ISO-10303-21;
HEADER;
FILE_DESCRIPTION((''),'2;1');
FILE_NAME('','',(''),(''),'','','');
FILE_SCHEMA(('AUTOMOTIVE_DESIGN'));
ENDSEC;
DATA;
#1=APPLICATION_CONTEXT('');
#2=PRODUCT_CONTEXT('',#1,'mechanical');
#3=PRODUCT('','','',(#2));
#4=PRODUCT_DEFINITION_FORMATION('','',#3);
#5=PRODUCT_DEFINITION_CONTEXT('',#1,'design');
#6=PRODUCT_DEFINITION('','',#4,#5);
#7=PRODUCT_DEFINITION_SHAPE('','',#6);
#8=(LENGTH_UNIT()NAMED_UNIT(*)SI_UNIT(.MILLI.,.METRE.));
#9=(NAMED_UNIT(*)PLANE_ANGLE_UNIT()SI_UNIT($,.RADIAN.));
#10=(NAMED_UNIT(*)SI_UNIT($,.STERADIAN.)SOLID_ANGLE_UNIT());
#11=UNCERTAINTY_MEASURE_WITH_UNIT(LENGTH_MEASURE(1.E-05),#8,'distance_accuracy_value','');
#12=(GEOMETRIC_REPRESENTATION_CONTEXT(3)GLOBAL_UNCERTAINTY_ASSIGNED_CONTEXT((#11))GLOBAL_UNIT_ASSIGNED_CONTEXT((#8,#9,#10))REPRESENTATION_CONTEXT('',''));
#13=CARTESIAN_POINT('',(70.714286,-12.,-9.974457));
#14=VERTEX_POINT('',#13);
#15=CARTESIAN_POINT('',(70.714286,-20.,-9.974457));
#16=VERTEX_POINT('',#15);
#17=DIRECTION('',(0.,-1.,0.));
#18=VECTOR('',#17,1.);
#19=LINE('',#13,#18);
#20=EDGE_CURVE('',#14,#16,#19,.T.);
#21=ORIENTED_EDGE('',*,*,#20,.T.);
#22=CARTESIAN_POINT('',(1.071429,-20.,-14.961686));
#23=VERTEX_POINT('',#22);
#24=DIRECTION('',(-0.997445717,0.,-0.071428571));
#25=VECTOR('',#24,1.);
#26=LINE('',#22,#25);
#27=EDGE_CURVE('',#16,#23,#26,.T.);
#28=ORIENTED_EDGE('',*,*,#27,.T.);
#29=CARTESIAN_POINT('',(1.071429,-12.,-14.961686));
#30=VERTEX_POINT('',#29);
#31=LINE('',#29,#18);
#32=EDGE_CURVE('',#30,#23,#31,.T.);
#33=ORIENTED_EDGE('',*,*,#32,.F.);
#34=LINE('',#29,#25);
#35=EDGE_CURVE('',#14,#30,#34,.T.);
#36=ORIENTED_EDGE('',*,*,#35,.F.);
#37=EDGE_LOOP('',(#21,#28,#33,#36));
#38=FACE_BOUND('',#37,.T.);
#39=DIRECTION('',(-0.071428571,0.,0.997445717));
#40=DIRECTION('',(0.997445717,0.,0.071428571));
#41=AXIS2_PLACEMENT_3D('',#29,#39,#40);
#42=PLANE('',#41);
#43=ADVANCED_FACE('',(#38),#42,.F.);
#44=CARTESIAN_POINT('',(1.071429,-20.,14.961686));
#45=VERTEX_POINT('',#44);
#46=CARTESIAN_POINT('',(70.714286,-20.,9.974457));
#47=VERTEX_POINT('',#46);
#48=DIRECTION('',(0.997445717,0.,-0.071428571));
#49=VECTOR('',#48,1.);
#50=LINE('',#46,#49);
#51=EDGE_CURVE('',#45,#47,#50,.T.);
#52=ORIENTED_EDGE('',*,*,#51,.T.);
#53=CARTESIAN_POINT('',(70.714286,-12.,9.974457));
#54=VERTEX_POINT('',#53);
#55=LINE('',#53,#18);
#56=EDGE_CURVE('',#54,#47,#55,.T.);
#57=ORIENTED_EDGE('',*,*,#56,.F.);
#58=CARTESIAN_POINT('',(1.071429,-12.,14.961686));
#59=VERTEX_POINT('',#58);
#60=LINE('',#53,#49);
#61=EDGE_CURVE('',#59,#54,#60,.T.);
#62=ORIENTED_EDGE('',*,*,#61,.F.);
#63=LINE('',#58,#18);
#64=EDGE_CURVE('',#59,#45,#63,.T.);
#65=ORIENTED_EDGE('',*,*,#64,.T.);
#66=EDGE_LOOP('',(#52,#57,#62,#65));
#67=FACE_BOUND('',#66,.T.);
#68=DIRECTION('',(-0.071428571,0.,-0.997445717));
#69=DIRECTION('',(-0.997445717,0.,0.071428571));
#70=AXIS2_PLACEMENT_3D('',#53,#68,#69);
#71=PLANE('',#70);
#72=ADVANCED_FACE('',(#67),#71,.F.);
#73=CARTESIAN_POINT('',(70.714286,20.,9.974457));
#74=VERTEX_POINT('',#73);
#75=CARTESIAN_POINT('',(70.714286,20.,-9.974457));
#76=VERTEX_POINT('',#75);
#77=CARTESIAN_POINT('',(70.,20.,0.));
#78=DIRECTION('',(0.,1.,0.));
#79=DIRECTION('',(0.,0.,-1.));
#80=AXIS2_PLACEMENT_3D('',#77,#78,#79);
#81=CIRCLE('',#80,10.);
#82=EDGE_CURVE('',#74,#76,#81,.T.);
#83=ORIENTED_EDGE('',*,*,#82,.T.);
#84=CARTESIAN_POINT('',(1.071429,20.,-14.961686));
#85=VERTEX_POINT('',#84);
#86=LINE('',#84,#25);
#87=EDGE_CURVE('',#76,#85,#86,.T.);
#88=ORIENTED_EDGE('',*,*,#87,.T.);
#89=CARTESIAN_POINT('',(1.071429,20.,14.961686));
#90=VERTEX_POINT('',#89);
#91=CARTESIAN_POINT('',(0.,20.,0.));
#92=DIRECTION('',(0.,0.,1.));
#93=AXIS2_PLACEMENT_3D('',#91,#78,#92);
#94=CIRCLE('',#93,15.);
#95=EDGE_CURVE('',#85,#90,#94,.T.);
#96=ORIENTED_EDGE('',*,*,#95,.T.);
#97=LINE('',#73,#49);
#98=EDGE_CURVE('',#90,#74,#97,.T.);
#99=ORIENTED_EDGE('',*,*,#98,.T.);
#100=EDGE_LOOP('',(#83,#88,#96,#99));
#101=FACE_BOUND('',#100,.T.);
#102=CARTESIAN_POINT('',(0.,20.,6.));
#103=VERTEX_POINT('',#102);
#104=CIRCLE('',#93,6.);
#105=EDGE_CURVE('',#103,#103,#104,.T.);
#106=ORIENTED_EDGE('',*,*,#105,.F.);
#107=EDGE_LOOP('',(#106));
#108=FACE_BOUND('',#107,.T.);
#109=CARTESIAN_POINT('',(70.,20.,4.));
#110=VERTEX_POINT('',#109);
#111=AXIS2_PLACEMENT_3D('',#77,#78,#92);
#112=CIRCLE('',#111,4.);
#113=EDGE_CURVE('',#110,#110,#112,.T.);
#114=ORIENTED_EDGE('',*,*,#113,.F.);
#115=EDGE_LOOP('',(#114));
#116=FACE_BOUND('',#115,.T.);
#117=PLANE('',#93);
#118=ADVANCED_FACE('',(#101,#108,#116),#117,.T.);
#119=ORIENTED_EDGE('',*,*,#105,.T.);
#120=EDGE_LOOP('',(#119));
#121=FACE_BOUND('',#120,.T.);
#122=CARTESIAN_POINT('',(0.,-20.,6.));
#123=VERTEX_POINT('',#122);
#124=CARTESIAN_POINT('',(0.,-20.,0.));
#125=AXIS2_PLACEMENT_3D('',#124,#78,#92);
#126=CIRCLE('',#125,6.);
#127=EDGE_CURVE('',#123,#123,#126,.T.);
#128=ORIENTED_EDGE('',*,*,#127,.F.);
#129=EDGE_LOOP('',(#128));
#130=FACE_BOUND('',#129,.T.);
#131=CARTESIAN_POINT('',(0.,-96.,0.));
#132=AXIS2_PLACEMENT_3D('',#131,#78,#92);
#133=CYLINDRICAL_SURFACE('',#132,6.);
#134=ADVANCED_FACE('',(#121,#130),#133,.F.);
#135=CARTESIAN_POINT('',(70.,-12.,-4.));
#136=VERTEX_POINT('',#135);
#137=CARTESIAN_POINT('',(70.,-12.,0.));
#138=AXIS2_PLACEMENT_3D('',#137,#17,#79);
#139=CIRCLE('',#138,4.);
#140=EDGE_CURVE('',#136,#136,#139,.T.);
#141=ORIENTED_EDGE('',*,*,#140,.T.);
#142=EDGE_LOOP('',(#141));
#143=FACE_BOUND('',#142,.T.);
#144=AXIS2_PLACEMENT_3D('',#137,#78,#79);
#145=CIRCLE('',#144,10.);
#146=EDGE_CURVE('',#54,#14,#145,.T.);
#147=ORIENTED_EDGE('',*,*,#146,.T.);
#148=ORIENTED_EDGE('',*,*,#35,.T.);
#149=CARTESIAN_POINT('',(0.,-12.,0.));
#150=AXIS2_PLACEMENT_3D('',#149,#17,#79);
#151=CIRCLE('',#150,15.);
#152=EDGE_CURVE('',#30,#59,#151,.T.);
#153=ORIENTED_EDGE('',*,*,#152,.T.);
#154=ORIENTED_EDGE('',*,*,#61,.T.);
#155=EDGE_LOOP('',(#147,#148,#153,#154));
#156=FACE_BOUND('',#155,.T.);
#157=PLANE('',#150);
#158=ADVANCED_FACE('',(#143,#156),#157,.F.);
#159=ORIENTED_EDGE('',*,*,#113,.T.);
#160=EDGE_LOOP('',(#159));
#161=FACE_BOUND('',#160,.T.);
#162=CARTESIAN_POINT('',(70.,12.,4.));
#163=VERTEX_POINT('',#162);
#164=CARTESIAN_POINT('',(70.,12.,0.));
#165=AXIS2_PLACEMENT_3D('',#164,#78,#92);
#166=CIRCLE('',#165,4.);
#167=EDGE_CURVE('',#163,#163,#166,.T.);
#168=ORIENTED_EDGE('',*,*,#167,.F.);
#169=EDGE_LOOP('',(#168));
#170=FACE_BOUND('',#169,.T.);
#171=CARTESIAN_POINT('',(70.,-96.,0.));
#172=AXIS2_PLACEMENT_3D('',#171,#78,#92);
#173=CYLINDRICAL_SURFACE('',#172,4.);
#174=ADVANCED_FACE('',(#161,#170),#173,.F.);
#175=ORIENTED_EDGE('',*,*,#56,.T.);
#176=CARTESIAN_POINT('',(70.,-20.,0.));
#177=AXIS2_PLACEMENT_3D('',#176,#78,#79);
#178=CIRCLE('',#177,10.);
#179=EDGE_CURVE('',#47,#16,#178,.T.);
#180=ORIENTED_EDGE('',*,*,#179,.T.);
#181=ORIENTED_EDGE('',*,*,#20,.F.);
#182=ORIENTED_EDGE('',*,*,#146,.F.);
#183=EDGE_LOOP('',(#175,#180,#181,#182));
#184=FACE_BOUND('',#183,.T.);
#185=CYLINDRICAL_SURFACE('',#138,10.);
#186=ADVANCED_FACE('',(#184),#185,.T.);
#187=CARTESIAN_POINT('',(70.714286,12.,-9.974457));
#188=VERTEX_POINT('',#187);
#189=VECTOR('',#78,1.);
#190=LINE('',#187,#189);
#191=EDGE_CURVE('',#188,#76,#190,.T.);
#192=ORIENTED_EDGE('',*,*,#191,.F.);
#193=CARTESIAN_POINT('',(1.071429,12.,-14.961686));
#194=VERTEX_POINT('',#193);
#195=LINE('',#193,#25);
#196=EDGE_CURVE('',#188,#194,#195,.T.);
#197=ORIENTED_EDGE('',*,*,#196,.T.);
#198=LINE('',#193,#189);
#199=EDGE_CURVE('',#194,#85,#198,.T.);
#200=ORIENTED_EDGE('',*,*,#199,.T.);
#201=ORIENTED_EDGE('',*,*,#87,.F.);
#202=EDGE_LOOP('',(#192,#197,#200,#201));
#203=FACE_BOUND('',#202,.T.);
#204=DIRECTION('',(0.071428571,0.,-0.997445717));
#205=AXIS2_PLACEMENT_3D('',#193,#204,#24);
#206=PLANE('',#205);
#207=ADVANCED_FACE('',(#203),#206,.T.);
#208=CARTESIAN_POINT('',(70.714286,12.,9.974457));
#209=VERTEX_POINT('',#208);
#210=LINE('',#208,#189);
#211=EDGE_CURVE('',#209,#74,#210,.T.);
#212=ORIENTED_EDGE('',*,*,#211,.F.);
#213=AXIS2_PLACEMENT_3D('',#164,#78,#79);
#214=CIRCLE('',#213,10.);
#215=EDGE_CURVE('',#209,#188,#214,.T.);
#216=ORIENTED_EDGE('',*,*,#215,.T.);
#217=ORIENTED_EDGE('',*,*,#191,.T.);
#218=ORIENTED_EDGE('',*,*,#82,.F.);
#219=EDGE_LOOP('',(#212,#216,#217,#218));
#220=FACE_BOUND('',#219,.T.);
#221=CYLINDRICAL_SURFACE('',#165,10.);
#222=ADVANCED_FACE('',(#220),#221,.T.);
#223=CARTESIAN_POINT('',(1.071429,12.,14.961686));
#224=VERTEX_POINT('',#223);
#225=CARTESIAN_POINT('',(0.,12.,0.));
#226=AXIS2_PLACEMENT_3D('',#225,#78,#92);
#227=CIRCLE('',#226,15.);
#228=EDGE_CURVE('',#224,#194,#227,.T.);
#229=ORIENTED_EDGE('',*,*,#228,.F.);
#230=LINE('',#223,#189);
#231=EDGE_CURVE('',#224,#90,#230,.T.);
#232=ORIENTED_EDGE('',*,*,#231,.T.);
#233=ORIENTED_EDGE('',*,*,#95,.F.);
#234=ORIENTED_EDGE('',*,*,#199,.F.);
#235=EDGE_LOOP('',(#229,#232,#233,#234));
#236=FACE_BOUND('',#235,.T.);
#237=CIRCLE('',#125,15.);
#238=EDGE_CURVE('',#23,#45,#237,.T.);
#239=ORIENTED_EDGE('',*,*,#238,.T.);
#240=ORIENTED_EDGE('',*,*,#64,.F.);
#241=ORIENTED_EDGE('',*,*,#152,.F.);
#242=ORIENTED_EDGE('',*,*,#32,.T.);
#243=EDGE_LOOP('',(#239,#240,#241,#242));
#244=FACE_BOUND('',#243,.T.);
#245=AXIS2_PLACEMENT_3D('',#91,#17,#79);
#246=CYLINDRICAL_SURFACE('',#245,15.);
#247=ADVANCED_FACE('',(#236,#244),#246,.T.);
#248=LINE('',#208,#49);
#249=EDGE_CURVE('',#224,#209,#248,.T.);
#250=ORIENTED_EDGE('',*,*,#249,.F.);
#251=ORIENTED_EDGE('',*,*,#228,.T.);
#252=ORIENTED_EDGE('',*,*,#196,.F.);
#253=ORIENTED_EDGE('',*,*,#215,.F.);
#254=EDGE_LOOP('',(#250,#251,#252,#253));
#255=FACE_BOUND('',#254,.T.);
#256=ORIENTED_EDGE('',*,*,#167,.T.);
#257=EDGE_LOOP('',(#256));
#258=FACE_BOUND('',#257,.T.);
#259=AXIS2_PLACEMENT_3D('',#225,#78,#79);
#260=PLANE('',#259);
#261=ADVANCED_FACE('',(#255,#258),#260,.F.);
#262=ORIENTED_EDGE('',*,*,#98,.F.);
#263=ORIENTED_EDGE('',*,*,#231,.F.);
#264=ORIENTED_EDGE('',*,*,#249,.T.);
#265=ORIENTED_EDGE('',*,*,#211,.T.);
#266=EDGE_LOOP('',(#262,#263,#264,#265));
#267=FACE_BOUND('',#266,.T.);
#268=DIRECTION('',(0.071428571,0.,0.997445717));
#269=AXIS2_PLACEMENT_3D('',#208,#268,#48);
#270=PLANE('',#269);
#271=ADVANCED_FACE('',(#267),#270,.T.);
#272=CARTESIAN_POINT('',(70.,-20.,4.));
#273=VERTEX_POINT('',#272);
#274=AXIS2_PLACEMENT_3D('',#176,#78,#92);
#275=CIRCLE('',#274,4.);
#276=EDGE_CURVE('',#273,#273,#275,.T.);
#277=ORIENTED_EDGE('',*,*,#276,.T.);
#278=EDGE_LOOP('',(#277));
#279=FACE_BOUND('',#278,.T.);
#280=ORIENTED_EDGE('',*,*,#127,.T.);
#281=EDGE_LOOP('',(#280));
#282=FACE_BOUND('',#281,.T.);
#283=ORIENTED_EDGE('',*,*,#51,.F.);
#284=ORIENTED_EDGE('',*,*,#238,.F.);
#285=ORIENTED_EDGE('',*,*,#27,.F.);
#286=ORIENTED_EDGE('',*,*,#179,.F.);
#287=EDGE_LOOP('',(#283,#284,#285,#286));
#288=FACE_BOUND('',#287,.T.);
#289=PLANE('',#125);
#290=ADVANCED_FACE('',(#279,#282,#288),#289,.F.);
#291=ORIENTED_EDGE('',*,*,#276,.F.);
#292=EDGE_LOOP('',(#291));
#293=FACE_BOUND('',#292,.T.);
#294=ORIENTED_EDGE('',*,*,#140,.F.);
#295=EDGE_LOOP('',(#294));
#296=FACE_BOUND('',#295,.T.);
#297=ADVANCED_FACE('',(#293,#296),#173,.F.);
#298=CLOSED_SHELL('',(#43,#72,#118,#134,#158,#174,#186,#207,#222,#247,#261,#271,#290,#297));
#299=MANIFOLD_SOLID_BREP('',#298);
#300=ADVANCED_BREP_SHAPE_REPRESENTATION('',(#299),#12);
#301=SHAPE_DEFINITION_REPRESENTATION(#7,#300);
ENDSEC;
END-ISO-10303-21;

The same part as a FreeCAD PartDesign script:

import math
import FreeCAD as App
import Part
import Sketcher
from FreeCAD import Vector
Q = App.Units.Quantity

doc = App.newDocument("Part")
body = doc.addObject("PartDesign::Body", "Body")

sketch1 = body.newObject("Sketcher::SketchObject", "Sketch")
sketch1.AttachmentSupport = (doc.getObject("XZ_Plane"), [""])
sketch1.MapMode = "FlatFace"
sketch1.AttachmentOffset = App.Placement(Vector(0, 0, 20), App.Rotation())
sketch1.addGeometry(Part.Circle(Vector(0, 0, 0), Vector(0, 0, 1), 15), False)
sketch1.addConstraint(Sketcher.Constraint("Coincident", 0, 3, -1, 1))
sketch1.addConstraint(Sketcher.Constraint("Diameter", 0, Q("30 mm")))
pad1 = body.newObject("PartDesign::Pad", "Pad")
pad1.Profile = sketch1
pad1.Length = 40
pad1.Reversed = True

sketch2 = body.newObject("Sketcher::SketchObject", "Sketch001")
sketch2.AttachmentSupport = (doc.getObject("XZ_Plane"), [""])
sketch2.MapMode = "FlatFace"
sketch2.AttachmentOffset = App.Placement(Vector(0, 0, 20), App.Rotation())
sketch2.addGeometry(Part.LineSegment(Vector(70.714286, -9.974457, 0), Vector(1.071429, -14.961686, 0)), False)
sketch2.addGeometry(Part.ArcOfCircle(Part.Circle(Vector(0, 0, 0), Vector(0, 0, 1), 15), math.radians(85.903956), math.radians(274.096044)), False)
sketch2.addGeometry(Part.LineSegment(Vector(1.071429, 14.961686, 0), Vector(70.714286, 9.974457, 0)), False)
sketch2.addGeometry(Part.ArcOfCircle(Part.Circle(Vector(70, 0, 0), Vector(0, 0, 1), 10), math.radians(-85.903956), math.radians(85.903956)), False)
sketch2.addConstraint(Sketcher.Constraint("Tangent", 0, 2, 1, 2))
sketch2.addConstraint(Sketcher.Constraint("Tangent", 1, 1, 2, 1))
sketch2.addConstraint(Sketcher.Constraint("Tangent", 2, 2, 3, 2))
sketch2.addConstraint(Sketcher.Constraint("Tangent", 3, 1, 0, 1))
sketch2.addConstraint(Sketcher.Constraint("Coincident", 1, 3, -1, 1))
sketch2.addConstraint(Sketcher.Constraint("PointOnObject", 3, 3, -1))
sketch2.addConstraint(Sketcher.Constraint("Radius", 1, Q("15 mm")))
sketch2.addConstraint(Sketcher.Constraint("Radius", 3, Q("10 mm")))
sketch2.addConstraint(Sketcher.Constraint("DistanceX", -1, 1, 3, 3, Q("70 mm")))
pad2 = body.newObject("PartDesign::Pad", "Pad001")
pad2.Profile = sketch2
pad2.Length = 8
pad2.Reversed = True
doc.recompute()

mirrored = body.newObject("PartDesign::Mirrored", "Mirrored")
mirrored.Originals = [pad2]
mirrored.MirrorPlane = (doc.getObject("XZ_Plane"), [""])
body.Tip = mirrored

sketch3 = body.newObject("Sketcher::SketchObject", "Sketch002")
sketch3.AttachmentSupport = (doc.getObject("XZ_Plane"), [""])
sketch3.MapMode = "FlatFace"
sketch3.addGeometry(Part.Circle(Vector(0, 0, 0), Vector(0, 0, 1), 6), False)
sketch3.addConstraint(Sketcher.Constraint("Coincident", 0, 3, -1, 1))
sketch3.addConstraint(Sketcher.Constraint("Diameter", 0, Q("12 mm")))
pocket1 = body.newObject("PartDesign::Pocket", "Pocket")
pocket1.Profile = sketch3
pocket1.Length = 192
pocket1.Midplane = True

sketch4 = body.newObject("Sketcher::SketchObject", "Sketch003")
sketch4.AttachmentSupport = (doc.getObject("XZ_Plane"), [""])
sketch4.MapMode = "FlatFace"
sketch4.addGeometry(Part.Circle(Vector(70, 0, 0), Vector(0, 0, 1), 4), False)
sketch4.addConstraint(Sketcher.Constraint("PointOnObject", 0, 3, -1))
sketch4.addConstraint(Sketcher.Constraint("Diameter", 0, Q("8 mm")))
sketch4.addConstraint(Sketcher.Constraint("DistanceX", -1, 1, 0, 3, Q("70 mm")))
pocket2 = body.newObject("PartDesign::Pocket", "Pocket001")
pocket2.Profile = sketch4
pocket2.Length = 192
pocket2.Midplane = True

doc.recompute()
